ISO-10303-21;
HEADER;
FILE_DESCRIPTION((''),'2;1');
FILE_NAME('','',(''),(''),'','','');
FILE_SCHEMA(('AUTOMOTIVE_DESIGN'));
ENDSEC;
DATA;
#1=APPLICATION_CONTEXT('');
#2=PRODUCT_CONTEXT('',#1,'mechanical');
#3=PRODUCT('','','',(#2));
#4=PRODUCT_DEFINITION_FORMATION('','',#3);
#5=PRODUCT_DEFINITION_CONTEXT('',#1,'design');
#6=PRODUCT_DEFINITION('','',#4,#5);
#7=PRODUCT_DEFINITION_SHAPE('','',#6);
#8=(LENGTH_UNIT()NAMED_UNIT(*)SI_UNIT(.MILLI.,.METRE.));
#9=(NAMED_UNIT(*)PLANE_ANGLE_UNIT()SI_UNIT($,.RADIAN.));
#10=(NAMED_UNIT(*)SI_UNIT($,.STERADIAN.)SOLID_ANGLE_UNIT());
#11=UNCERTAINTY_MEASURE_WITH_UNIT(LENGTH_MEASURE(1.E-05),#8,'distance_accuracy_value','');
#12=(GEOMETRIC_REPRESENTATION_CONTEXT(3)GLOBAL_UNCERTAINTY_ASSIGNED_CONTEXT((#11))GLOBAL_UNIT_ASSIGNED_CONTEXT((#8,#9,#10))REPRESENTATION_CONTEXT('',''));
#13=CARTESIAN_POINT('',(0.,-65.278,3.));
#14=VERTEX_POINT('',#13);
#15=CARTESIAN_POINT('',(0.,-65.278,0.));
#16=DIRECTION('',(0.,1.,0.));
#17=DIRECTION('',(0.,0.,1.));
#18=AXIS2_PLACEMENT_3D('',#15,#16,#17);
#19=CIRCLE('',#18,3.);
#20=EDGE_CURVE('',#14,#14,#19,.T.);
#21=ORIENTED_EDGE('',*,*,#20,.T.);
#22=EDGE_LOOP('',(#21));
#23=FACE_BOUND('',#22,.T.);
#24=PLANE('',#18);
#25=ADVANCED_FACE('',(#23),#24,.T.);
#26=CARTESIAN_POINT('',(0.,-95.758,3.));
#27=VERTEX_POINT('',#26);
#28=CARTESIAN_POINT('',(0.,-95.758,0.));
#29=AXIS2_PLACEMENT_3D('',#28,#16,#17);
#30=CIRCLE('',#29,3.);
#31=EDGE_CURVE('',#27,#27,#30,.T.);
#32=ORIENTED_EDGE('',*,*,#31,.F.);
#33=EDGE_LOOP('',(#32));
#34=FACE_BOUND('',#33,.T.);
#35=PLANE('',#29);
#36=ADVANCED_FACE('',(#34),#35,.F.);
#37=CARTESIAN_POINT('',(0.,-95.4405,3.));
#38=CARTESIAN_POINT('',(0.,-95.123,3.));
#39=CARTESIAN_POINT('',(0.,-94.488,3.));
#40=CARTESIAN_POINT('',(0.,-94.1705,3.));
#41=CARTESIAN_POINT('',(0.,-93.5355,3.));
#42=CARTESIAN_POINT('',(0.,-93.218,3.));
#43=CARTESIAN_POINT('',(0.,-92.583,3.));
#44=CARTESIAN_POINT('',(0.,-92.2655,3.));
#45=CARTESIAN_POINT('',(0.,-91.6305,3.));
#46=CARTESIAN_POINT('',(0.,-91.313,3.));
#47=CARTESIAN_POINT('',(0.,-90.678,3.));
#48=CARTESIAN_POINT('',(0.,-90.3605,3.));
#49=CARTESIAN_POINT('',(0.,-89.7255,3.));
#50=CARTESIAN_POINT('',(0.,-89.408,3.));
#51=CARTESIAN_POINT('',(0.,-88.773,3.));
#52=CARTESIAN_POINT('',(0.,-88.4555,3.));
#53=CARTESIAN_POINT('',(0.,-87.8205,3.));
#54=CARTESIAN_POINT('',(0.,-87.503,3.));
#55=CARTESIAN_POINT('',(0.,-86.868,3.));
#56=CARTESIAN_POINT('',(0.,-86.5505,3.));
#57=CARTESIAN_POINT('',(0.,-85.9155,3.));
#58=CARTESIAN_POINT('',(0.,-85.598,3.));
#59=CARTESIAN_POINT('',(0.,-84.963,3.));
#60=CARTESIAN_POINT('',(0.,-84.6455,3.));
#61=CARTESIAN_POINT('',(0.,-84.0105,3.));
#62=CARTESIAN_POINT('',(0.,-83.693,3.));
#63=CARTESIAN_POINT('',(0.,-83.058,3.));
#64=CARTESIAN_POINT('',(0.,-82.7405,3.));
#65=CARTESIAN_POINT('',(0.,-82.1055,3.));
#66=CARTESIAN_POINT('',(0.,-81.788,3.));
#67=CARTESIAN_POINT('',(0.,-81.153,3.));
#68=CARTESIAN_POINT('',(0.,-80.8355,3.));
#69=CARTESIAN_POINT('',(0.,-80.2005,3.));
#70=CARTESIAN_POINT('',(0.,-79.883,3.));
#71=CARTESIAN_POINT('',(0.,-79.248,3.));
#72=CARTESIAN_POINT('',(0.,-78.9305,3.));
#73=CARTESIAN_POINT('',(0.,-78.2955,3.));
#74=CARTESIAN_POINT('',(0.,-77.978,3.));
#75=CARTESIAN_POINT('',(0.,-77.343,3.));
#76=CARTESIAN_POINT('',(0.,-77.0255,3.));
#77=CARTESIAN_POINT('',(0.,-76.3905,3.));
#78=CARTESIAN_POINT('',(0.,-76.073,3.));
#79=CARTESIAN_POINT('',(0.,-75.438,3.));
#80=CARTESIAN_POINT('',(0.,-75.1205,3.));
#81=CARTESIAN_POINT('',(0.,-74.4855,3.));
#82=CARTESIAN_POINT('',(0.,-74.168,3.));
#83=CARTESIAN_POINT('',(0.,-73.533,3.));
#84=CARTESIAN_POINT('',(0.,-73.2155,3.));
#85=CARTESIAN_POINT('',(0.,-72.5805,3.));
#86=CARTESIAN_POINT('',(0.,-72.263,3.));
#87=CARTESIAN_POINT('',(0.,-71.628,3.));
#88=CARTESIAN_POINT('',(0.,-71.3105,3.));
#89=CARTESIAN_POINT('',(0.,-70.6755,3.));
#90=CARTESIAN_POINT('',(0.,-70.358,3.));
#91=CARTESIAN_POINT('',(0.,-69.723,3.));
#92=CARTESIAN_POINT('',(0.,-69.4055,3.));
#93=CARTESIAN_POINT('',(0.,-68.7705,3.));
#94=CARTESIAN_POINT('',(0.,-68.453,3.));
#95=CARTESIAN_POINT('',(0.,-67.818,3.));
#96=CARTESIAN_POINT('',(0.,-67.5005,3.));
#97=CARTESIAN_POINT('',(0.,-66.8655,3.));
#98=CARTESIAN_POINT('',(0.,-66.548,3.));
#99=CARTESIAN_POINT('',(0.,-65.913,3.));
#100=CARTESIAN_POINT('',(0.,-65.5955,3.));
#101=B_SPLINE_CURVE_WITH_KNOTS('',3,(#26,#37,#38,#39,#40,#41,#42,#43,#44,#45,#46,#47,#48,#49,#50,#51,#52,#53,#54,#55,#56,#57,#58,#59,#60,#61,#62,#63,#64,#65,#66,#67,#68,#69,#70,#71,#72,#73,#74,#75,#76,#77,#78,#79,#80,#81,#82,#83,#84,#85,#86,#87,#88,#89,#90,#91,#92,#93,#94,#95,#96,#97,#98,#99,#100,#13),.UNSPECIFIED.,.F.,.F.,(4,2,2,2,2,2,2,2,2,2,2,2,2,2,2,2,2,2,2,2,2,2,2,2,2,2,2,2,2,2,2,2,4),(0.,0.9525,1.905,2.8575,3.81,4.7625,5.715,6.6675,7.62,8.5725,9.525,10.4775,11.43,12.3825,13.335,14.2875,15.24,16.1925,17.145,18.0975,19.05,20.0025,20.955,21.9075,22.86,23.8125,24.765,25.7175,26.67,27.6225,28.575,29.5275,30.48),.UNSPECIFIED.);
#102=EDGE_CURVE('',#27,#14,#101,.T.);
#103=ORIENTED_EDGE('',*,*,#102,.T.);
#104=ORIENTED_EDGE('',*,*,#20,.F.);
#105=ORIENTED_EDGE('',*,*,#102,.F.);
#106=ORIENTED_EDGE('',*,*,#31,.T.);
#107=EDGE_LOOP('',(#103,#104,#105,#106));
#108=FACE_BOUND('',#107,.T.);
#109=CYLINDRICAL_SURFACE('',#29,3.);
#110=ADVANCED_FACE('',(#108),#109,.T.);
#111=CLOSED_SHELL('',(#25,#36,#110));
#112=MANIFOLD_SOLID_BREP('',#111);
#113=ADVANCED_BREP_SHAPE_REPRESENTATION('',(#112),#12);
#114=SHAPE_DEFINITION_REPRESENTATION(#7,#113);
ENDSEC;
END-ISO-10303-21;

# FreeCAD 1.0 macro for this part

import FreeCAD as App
import Part
import Sketcher

V = App.Vector
Q = App.Units.Quantity

doc = App.newDocument("Part")
body = doc.addObject("PartDesign::Body", "Body")

sketch1 = doc.addObject("Sketcher::SketchObject", "Sketch")
body.addObject(sketch1)
sketch1.AttachmentSupport = (doc.XZ_Plane, [""])
sketch1.MapMode = "FlatFace"
sketch1.AttachmentOffset = App.Placement(V(0, 0, 65.278), App.Rotation())
sketch1.addGeometry(Part.Circle(V(0, 0, 0), V(0, 0, 1), 3), False)
sketch1.addConstraint([
    Sketcher.Constraint("Coincident", 0, 3, -1, 1),
    Sketcher.Constraint("Diameter", 0, Q("6 mm")),
])
pad1 = doc.addObject("PartDesign::Pad", "Pad")
body.addObject(pad1)
pad1.Profile = sketch1
pad1.Length = 30.48

doc.recompute()
